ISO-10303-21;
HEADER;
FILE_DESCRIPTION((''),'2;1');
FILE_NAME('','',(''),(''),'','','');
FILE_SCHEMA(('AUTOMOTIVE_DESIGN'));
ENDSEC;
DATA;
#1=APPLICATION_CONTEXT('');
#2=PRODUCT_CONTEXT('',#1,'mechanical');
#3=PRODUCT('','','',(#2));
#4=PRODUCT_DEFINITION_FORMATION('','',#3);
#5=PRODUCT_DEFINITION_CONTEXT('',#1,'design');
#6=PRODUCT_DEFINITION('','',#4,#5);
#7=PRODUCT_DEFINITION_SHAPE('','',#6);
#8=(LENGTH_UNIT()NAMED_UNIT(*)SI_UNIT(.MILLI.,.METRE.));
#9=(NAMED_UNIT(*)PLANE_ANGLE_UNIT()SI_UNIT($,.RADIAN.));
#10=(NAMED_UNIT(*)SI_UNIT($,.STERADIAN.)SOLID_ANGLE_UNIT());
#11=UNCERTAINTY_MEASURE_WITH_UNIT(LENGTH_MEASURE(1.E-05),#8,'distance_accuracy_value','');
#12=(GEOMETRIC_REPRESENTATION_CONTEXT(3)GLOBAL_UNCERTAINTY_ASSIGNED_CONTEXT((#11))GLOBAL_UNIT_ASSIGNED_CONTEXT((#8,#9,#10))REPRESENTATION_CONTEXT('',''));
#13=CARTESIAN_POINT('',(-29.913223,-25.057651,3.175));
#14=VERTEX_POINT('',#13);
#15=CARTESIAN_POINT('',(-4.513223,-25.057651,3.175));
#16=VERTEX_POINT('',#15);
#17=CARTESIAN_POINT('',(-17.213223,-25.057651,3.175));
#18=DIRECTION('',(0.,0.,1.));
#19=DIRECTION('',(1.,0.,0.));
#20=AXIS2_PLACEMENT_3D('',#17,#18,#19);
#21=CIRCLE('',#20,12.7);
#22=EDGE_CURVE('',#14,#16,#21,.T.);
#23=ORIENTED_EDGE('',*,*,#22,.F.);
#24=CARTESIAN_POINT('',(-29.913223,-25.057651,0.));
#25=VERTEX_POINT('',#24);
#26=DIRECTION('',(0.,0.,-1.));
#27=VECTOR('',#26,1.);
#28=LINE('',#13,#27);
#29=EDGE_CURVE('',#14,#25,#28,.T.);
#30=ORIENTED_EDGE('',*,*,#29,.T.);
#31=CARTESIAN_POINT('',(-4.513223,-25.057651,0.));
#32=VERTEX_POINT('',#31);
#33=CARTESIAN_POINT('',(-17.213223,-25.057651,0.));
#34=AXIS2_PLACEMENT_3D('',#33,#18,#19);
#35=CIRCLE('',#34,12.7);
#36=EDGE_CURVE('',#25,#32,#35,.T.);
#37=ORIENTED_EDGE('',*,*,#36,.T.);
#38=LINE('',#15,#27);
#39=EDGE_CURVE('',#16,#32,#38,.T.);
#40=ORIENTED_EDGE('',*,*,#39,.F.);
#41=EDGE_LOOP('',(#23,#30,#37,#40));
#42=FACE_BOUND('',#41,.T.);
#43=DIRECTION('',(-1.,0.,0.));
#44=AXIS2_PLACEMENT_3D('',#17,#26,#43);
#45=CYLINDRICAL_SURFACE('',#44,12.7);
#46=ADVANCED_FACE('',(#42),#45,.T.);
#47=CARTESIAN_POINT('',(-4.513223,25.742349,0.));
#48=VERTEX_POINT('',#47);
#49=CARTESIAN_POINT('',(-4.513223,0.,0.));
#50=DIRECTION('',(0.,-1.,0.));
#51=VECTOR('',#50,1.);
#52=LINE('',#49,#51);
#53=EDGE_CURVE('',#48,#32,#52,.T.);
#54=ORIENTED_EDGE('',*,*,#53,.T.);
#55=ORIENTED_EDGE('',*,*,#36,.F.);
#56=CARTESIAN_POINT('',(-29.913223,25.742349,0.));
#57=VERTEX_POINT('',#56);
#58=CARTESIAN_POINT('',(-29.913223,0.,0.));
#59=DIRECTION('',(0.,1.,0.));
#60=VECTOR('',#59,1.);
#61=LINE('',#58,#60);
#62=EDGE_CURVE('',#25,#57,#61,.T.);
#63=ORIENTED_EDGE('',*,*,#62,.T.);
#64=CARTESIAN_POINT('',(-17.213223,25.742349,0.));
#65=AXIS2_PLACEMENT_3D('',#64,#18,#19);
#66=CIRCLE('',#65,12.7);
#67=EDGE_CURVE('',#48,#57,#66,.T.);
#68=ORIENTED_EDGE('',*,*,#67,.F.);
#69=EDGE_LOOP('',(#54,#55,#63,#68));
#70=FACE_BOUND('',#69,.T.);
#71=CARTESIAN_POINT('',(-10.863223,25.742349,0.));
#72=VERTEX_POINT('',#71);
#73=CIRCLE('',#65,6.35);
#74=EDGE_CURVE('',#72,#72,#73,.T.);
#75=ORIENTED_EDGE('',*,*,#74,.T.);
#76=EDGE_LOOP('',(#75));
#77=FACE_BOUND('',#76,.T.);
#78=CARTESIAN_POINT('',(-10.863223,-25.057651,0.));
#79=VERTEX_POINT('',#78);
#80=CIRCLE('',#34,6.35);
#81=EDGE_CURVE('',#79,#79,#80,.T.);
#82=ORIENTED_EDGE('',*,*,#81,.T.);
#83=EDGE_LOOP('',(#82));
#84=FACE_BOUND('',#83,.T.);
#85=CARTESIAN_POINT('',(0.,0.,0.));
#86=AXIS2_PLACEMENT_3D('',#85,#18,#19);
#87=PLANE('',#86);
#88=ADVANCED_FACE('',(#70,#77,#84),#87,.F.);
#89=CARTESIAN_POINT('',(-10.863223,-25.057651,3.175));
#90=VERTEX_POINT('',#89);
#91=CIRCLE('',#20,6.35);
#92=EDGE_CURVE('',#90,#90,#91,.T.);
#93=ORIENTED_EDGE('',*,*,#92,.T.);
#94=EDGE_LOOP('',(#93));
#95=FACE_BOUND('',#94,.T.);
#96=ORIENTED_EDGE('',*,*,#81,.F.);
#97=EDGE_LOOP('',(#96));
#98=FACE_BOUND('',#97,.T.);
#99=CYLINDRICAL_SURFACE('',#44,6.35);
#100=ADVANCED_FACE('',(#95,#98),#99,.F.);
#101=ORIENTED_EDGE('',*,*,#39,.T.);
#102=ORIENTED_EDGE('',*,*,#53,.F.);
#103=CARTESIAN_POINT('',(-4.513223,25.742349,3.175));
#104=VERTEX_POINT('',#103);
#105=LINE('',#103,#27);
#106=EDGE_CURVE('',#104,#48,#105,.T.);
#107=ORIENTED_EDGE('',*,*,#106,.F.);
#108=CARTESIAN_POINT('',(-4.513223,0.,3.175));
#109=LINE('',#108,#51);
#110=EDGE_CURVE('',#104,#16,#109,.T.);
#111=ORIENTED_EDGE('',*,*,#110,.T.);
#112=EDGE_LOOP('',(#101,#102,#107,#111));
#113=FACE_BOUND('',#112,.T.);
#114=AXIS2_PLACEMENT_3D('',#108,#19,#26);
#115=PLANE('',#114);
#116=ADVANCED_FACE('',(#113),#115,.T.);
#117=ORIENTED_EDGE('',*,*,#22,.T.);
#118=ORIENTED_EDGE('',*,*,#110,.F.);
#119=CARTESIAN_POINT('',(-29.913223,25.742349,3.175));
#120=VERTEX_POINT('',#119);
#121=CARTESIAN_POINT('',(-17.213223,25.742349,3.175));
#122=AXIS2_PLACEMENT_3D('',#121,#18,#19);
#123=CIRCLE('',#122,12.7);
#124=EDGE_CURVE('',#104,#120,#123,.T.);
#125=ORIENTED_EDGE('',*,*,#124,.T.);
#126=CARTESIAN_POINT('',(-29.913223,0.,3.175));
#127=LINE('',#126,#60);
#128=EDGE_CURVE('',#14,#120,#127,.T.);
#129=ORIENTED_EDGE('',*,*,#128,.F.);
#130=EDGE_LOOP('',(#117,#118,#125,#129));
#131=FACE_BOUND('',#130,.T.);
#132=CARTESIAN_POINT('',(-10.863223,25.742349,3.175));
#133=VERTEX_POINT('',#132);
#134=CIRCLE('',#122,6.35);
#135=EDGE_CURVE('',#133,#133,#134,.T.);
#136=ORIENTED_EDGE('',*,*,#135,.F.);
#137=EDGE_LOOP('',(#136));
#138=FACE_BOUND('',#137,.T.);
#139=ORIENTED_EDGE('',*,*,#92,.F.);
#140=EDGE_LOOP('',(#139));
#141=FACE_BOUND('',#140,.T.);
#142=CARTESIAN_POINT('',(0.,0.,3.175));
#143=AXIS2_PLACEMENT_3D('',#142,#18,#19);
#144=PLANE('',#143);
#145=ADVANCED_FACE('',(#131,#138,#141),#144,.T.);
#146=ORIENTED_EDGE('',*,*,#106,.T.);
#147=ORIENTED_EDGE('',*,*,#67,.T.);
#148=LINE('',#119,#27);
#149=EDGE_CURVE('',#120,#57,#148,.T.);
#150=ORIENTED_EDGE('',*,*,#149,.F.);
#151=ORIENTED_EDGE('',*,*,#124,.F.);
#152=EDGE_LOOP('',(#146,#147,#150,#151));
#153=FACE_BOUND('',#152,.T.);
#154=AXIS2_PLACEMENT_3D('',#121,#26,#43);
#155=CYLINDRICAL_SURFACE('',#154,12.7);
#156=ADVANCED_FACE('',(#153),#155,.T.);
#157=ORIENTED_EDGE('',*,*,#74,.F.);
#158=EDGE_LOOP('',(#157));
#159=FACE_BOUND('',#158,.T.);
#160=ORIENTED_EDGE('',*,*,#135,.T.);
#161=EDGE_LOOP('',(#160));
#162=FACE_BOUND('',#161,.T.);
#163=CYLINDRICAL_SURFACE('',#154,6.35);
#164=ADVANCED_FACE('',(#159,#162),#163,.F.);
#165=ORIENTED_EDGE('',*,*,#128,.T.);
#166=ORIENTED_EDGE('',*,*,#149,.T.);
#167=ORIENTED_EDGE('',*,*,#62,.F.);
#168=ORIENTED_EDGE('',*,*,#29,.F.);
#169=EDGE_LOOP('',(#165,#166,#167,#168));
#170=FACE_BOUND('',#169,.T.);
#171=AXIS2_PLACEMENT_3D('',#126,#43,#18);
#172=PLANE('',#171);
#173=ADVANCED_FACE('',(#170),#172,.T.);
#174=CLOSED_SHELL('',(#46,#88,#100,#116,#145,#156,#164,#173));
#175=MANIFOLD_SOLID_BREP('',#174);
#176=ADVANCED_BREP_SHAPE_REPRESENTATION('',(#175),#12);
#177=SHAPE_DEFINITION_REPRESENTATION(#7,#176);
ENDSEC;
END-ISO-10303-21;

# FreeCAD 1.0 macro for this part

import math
import FreeCAD as App
import Part
import Sketcher
from FreeCAD import Vector
Q = App.Units.Quantity

doc = App.newDocument("Part")
params = doc.addObject("Spreadsheet::Sheet", "Params")
for row, (alias, value) in enumerate([
    ("sketch1_diameter", "0.5 in"),
    ("sketch1_radius", "0.5 in"),
    ("sketch1_height", "2 in"),
    ("pad1_length", "0.125 in"),
], start=1):
    params.set(f"A{row}", alias)
    params.set(f"B{row}", "=" + value)
    params.setAlias(f"B{row}", alias)

body = doc.addObject("PartDesign::Body", "Body")

sketch1 = doc.addObject("Sketcher::SketchObject", "Sketch")
body.addObject(sketch1)
sketch1.AttachmentSupport = (doc.XY_Plane, [""])
sketch1.MapMode = "FlatFace"
sketch1.addGeometry([
    Part.ArcOfCircle(Part.Circle(Vector(-17.213223, 25.742349, 0), Vector(0, 0, 1), 12.7), math.radians(0), math.radians(180)),
    Part.LineSegment(Vector(-29.913223, 25.742349, 0), Vector(-29.913223, -25.057651, 0)),
    Part.ArcOfCircle(Part.Circle(Vector(-17.213223, -25.057651, 0), Vector(0, 0, 1), 12.7), math.radians(180), math.radians(360)),
    Part.LineSegment(Vector(-4.513223, -25.057651, 0), Vector(-4.513223, 25.742349, 0)),
    Part.Circle(Vector(-17.213223, -25.057651, 0), Vector(0, 0, 1), 6.35),
    Part.Circle(Vector(-17.213223, 25.742349, 0), Vector(0, 0, 1), 6.35),
], False)
sketch1.addConstraint([
    Sketcher.Constraint("Tangent", 0, 2, 1, 1),
    Sketcher.Constraint("Tangent", 1, 2, 2, 1),
    Sketcher.Constraint("Tangent", 2, 2, 3, 1),
    Sketcher.Constraint("Tangent", 3, 2, 0, 1),
    Sketcher.Constraint("Vertical", 1),
    Sketcher.Constraint("Vertical", 3),
    Sketcher.Constraint("Coincident", 4, 3, 2, 3),
    Sketcher.Constraint("Coincident", 5, 3, 0, 3),
    Sketcher.Constraint("Equal", 4, 5),
    Sketcher.Constraint("Diameter", 4, Q("0.5 in")),
    Sketcher.Constraint("Radius", 0, Q("0.5 in")),
    Sketcher.Constraint("DistanceY", 1, 2, 1, 1, Q("2 in")),
    Sketcher.Constraint("DistanceY", -1, 1, 0, 3, 25.742349),
    Sketcher.Constraint("DistanceX", 0, 3, -1, 1, 17.213223),
])
sketch1.setExpression("Constraints[9]", "Params.sketch1_diameter")
sketch1.setExpression("Constraints[10]", "Params.sketch1_radius")
sketch1.setExpression("Constraints[11]", "Params.sketch1_height")
pad1 = doc.addObject("PartDesign::Pad", "Pad")
body.addObject(pad1)
pad1.Profile = sketch1
pad1.setExpression("Length", "Params.pad1_length")

doc.recompute()
